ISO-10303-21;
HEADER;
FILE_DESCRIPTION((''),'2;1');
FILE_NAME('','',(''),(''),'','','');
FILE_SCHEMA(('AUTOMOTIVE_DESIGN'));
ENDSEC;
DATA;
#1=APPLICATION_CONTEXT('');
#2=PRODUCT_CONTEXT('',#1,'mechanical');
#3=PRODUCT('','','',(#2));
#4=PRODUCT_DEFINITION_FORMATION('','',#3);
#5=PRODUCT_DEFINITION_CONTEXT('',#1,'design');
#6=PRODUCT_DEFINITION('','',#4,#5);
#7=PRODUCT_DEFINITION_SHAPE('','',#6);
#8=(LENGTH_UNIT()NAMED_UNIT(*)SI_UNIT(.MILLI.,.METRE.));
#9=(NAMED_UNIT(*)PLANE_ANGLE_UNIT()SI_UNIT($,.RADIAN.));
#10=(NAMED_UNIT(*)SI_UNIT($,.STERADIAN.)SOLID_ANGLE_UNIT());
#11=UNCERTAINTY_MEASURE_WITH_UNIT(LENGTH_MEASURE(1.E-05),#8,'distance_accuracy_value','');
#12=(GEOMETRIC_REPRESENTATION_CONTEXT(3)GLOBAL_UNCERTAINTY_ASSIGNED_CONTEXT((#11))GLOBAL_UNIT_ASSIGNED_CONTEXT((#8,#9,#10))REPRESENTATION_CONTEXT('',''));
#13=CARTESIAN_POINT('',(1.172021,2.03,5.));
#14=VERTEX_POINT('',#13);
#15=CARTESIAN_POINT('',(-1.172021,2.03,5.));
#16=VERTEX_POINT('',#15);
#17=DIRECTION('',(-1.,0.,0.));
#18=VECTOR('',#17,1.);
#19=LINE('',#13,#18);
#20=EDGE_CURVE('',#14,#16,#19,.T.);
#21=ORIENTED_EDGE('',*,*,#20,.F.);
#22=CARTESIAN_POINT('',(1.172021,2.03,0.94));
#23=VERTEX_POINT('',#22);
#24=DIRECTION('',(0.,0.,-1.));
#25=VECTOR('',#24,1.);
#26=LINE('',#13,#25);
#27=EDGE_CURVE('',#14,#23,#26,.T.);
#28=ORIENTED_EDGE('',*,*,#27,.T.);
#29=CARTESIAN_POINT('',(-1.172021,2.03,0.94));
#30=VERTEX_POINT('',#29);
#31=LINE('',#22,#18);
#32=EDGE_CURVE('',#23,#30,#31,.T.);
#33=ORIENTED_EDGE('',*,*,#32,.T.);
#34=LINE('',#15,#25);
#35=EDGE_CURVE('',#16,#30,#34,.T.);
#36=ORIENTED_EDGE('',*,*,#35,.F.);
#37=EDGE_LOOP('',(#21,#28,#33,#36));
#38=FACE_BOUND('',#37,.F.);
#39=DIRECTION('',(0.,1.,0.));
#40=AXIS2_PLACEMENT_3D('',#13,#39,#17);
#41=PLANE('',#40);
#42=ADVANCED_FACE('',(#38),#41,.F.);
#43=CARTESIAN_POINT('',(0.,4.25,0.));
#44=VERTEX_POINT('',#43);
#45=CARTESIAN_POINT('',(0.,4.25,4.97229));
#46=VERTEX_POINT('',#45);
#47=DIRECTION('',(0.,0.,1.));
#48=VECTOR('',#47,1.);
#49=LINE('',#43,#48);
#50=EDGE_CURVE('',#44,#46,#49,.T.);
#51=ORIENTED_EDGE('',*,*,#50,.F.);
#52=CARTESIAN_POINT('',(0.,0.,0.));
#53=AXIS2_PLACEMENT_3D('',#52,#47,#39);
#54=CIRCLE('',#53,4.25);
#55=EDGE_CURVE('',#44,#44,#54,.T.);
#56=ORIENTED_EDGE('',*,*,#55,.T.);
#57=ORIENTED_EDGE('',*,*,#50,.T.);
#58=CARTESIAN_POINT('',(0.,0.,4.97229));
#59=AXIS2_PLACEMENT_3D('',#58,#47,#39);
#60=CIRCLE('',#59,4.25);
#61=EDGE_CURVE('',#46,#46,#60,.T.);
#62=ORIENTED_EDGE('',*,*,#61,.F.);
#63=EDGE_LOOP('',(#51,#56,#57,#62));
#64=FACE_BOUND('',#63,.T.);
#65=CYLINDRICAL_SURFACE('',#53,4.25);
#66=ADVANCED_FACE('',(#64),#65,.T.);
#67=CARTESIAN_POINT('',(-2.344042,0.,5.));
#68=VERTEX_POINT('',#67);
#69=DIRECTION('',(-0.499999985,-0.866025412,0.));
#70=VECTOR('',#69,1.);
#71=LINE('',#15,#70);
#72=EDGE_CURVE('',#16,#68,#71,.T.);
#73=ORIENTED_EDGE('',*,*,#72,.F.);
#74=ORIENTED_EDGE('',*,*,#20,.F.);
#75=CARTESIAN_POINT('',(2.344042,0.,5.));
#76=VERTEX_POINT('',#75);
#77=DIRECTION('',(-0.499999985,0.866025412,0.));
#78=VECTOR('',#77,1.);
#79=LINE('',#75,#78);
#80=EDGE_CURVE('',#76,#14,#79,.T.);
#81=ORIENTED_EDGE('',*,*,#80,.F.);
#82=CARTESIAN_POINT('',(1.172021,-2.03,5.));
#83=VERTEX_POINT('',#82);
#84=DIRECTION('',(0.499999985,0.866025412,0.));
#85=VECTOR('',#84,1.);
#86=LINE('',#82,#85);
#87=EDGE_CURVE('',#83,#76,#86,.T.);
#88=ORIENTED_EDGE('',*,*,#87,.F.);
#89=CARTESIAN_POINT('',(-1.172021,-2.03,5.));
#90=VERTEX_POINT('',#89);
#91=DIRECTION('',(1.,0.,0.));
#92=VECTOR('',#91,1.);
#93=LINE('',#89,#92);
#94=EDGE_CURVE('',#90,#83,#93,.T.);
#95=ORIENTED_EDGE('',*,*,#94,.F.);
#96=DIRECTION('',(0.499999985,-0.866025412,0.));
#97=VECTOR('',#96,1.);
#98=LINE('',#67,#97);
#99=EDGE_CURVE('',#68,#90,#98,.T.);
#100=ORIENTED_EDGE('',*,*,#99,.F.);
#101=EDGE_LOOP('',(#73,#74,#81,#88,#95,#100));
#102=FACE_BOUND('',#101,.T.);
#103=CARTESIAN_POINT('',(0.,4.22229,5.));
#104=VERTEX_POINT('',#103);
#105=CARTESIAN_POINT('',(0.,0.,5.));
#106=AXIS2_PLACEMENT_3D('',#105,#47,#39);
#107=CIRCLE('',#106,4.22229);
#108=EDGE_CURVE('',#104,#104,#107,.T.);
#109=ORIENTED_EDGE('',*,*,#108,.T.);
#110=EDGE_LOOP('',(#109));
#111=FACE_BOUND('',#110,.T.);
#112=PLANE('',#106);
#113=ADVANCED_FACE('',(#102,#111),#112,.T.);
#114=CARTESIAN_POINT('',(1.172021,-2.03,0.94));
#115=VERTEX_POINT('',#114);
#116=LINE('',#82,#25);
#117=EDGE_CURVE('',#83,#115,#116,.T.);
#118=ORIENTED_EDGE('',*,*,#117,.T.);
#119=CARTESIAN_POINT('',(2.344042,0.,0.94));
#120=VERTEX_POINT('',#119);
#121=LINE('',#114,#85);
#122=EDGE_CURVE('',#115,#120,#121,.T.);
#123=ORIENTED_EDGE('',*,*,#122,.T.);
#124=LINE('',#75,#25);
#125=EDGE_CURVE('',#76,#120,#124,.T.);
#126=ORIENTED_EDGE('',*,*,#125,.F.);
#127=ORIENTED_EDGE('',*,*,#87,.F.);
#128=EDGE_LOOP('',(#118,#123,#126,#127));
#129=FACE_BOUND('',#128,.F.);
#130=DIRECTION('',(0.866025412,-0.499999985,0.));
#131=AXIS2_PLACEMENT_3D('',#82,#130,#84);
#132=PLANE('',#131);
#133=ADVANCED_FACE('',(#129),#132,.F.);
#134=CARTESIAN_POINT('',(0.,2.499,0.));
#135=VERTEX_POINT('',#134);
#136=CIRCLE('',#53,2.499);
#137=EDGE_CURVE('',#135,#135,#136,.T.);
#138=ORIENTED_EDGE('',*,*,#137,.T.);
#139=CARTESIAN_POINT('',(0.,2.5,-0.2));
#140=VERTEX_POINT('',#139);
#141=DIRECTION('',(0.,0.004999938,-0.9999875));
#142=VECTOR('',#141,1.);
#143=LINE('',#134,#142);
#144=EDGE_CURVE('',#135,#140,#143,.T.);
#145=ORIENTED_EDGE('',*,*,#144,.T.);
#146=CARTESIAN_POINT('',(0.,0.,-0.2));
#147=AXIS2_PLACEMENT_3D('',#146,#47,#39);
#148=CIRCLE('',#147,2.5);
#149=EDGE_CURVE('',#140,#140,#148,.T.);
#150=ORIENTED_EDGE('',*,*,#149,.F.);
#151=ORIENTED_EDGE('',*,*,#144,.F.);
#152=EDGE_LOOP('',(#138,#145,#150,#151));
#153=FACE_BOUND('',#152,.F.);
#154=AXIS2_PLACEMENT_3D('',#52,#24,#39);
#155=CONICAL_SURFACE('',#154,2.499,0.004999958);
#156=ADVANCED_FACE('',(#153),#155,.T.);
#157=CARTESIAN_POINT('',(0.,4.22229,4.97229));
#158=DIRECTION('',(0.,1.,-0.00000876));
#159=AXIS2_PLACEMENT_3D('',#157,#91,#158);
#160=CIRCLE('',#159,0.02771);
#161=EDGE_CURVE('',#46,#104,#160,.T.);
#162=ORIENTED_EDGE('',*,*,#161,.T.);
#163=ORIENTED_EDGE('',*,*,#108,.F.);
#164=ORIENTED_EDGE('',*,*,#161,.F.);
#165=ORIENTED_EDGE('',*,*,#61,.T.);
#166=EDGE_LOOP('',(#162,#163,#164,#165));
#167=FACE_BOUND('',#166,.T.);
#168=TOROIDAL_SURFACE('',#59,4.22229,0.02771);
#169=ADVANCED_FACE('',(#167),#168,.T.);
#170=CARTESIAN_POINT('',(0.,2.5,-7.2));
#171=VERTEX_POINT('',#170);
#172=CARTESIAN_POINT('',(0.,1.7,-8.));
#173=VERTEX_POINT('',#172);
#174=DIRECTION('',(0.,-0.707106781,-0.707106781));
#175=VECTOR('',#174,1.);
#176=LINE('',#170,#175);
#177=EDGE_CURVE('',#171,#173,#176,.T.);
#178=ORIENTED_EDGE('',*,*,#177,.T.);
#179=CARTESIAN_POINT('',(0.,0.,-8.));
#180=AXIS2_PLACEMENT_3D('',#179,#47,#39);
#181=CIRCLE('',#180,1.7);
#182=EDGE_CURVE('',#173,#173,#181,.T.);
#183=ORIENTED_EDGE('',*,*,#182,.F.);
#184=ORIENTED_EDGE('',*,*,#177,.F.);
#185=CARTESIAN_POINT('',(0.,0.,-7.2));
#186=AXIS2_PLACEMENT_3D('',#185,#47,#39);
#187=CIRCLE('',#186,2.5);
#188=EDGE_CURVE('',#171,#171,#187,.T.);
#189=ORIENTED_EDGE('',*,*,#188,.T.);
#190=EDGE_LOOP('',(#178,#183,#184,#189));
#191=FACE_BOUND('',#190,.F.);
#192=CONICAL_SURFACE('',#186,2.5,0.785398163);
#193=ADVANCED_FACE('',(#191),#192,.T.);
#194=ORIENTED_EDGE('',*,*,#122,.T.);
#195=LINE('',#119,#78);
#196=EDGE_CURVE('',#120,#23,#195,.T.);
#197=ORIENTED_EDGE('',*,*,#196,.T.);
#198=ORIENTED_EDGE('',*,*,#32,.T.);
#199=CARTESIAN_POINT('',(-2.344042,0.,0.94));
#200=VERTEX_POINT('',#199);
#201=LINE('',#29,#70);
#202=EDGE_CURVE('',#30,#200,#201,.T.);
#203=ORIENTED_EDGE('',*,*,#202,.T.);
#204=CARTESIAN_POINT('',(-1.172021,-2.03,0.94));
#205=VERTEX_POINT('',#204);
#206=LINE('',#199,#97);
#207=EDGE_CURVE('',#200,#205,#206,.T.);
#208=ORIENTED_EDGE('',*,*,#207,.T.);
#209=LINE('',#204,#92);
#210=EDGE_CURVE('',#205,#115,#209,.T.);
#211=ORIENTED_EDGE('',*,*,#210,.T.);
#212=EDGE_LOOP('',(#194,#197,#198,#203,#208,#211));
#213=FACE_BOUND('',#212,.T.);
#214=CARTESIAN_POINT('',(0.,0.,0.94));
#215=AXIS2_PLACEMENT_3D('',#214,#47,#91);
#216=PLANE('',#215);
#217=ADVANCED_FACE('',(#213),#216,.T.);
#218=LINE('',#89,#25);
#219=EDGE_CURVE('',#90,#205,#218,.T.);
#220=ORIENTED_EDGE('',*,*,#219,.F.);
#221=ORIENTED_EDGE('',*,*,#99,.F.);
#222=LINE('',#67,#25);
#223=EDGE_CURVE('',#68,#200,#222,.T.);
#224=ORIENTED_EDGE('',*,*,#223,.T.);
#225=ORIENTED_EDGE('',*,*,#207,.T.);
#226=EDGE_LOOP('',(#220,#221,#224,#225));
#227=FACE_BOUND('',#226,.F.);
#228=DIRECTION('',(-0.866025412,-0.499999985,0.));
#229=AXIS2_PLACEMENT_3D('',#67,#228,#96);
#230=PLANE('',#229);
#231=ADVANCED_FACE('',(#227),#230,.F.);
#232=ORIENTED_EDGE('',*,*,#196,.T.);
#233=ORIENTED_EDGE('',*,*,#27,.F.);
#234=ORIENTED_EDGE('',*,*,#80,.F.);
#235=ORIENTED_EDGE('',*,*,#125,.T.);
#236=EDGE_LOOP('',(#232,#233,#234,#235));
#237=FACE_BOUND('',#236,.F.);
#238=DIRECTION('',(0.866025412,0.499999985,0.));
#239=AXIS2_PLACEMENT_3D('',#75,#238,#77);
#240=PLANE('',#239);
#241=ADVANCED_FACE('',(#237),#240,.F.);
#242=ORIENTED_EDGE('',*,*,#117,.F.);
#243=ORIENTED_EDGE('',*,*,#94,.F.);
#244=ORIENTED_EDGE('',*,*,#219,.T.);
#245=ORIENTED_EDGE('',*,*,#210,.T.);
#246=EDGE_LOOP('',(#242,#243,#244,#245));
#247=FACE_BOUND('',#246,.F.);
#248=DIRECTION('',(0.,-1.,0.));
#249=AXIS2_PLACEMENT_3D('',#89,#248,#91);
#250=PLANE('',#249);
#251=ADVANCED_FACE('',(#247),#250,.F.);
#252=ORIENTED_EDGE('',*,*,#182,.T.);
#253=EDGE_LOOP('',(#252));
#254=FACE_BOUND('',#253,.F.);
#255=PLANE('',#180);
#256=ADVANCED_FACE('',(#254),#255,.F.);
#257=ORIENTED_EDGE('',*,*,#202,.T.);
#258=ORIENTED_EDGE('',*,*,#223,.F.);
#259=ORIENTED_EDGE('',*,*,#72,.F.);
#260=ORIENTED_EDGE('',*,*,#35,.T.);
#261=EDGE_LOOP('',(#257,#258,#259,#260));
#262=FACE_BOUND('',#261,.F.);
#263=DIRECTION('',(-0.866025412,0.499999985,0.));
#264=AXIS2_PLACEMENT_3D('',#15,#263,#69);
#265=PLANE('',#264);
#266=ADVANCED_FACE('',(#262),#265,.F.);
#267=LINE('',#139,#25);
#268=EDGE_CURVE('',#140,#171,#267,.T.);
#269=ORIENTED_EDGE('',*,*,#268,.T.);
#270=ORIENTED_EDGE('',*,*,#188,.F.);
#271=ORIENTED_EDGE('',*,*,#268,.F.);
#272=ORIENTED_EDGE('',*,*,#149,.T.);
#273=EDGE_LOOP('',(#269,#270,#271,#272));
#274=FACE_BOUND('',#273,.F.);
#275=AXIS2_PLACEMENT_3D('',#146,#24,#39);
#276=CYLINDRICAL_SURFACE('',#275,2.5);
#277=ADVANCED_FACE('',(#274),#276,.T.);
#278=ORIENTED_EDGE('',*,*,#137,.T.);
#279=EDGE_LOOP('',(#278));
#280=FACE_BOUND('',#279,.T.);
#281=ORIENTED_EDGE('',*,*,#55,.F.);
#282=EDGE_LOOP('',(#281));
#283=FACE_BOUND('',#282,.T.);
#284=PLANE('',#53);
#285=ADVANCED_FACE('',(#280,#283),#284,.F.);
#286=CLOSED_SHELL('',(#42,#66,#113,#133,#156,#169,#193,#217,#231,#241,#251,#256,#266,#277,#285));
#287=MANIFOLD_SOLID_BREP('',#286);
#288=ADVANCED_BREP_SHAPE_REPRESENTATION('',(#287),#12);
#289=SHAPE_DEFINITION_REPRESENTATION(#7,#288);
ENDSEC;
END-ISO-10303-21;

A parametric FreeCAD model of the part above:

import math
import FreeCAD as App
import Part
import Sketcher
Q = App.Units.Quantity


def add_polygon(sketch, points):
    """Adds a closed chain of lines whose ends are joined by coincident constraints."""
    first, n = sketch.GeometryCount, len(points)
    for a, b in zip(points, points[1:] + points[:1]):
        sketch.addGeometry(Part.LineSegment(App.Vector(*a, 0), App.Vector(*b, 0)), False)
    for i in range(n):
        sketch.addConstraint(Sketcher.Constraint("Coincident", first + i, 2, first + (i + 1) % n, 1))

doc = App.newDocument("Part")
body = doc.addObject("PartDesign::Body", "Body")

sketch1 = body.newObject("Sketcher::SketchObject", "Sketch")
sketch1.AttachmentSupport = (doc.getObject("YZ_Plane"), [""])
sketch1.MapMode = "FlatFace"
sketch1.addGeometry([
    Part.LineSegment(App.Vector(2.499, 0, 0), App.Vector(4.25, 0, 0)),
    Part.LineSegment(App.Vector(4.25, 0, 0), App.Vector(4.25, 4.972, 0)),
    Part.ArcOfCircle(Part.Circle(App.Vector(4.222, 4.972, 0), App.Vector(0, 0, 1), 0.028), math.radians(0), math.radians(90)),
    Part.LineSegment(App.Vector(4.222, 5, 0), App.Vector(0, 5, 0)),
    Part.LineSegment(App.Vector(0, 5, 0), App.Vector(0, -8, 0)),
    Part.LineSegment(App.Vector(0, -8, 0), App.Vector(1.7, -8, 0)),
    Part.LineSegment(App.Vector(1.7, -8, 0), App.Vector(2.5, -7.2, 0)),
    Part.LineSegment(App.Vector(2.5, -7.2, 0), App.Vector(2.5, -0.2, 0)),
    Part.LineSegment(App.Vector(2.5, -0.2, 0), App.Vector(2.499, 0, 0)),
], False)
sketch1.addConstraint([
    Sketcher.Constraint("Coincident", 0, 2, 1, 1),
    Sketcher.Constraint("Coincident", 1, 2, 2, 1),
    Sketcher.Constraint("Coincident", 2, 2, 3, 1),
    Sketcher.Constraint("Coincident", 3, 2, 4, 1),
    Sketcher.Constraint("Coincident", 4, 2, 5, 1),
    Sketcher.Constraint("Coincident", 5, 2, 6, 1),
    Sketcher.Constraint("Coincident", 6, 2, 7, 1),
    Sketcher.Constraint("Coincident", 7, 2, 8, 1),
    Sketcher.Constraint("Coincident", 8, 2, 0, 1),
    Sketcher.Constraint("Horizontal", 0),
    Sketcher.Constraint("Vertical", 1),
    Sketcher.Constraint("Horizontal", 3),
    Sketcher.Constraint("Vertical", 4),
    Sketcher.Constraint("Horizontal", 5),
    Sketcher.Constraint("Vertical", 7),
    Sketcher.Constraint("PointOnObject", 0, 2, -1),
    Sketcher.Constraint("PointOnObject", 3, 2, -2),
    Sketcher.Constraint("Horizontal", 2, 3, 1, 2),
    Sketcher.Constraint("DistanceY", 4, 2, 4, 1, Q("13 mm")),
    Sketcher.Constraint("DistanceY", 7, 1, 7, 2, Q("7 mm")),
    Sketcher.Constraint("Angle", 6, Q("45 deg")),
    Sketcher.Constraint("DistanceX", 5, 1, 5, 2, Q("1.7 mm")),
    Sketcher.Constraint("DistanceY", -1, 1, 2, 2, Q("5 mm")),
    Sketcher.Constraint("DistanceX", -1, 1, 6, 2, Q("2.5 mm")),
    Sketcher.Constraint("DistanceX", 0, 1, 0, 2, Q("1.751 mm")),
    Sketcher.Constraint("DistanceX", -1, 1, 0, 2, Q("4.25 mm")),
    Sketcher.Constraint("Radius", 2, Q("0.02771 mm")),
    Sketcher.Constraint("DistanceX", 3, 2, 3, 1, Q("4.22229 mm")),
])
revolution = body.newObject("PartDesign::Revolution", "Revolution")
revolution.Profile = sketch1
revolution.ReferenceAxis = (sketch1, ["V_Axis"])
revolution.Angle = 360

sketch2 = body.newObject("Sketcher::SketchObject", "Sketch001")
sketch2.AttachmentSupport = (doc.getObject("XY_Plane"), [""])
sketch2.MapMode = "FlatFace"
sketch2.AttachmentOffset = App.Placement(App.Vector(0, 0, 5), App.Rotation())
add_polygon(sketch2, [(2.3, 0), (1.2, 2), (-1.2, 2), (-2.3, 0), (-1.2, -2), (1.2, -2)])
sketch2.addConstraint([
    Sketcher.Constraint("Horizontal", 1),
    Sketcher.Constraint("Horizontal", 4),
    Sketcher.Constraint("Symmetric", 0, 2, 3, 2, -1, 1),
    Sketcher.Constraint("Symmetric", 2, 2, 5, 2, -1, 1),
    Sketcher.Constraint("PointOnObject", 2, 2, -1),
    Sketcher.Constraint("Parallel", 2, 5),
    Sketcher.Constraint("Vertical", 1, 2, 3, 2),
    Sketcher.Constraint("Angle", 0, Q("119.999999 deg")),
    Sketcher.Constraint("DistanceY", -1, 1, 0, 2, Q("2.03 mm")),
    Sketcher.Constraint("DistanceX", 1, 2, 1, 1, Q("2.344042 mm")),
])
pocket1 = body.newObject("PartDesign::Pocket", "Pocket")
pocket1.Profile = sketch2
pocket1.Length = 4.06

doc.recompute()
